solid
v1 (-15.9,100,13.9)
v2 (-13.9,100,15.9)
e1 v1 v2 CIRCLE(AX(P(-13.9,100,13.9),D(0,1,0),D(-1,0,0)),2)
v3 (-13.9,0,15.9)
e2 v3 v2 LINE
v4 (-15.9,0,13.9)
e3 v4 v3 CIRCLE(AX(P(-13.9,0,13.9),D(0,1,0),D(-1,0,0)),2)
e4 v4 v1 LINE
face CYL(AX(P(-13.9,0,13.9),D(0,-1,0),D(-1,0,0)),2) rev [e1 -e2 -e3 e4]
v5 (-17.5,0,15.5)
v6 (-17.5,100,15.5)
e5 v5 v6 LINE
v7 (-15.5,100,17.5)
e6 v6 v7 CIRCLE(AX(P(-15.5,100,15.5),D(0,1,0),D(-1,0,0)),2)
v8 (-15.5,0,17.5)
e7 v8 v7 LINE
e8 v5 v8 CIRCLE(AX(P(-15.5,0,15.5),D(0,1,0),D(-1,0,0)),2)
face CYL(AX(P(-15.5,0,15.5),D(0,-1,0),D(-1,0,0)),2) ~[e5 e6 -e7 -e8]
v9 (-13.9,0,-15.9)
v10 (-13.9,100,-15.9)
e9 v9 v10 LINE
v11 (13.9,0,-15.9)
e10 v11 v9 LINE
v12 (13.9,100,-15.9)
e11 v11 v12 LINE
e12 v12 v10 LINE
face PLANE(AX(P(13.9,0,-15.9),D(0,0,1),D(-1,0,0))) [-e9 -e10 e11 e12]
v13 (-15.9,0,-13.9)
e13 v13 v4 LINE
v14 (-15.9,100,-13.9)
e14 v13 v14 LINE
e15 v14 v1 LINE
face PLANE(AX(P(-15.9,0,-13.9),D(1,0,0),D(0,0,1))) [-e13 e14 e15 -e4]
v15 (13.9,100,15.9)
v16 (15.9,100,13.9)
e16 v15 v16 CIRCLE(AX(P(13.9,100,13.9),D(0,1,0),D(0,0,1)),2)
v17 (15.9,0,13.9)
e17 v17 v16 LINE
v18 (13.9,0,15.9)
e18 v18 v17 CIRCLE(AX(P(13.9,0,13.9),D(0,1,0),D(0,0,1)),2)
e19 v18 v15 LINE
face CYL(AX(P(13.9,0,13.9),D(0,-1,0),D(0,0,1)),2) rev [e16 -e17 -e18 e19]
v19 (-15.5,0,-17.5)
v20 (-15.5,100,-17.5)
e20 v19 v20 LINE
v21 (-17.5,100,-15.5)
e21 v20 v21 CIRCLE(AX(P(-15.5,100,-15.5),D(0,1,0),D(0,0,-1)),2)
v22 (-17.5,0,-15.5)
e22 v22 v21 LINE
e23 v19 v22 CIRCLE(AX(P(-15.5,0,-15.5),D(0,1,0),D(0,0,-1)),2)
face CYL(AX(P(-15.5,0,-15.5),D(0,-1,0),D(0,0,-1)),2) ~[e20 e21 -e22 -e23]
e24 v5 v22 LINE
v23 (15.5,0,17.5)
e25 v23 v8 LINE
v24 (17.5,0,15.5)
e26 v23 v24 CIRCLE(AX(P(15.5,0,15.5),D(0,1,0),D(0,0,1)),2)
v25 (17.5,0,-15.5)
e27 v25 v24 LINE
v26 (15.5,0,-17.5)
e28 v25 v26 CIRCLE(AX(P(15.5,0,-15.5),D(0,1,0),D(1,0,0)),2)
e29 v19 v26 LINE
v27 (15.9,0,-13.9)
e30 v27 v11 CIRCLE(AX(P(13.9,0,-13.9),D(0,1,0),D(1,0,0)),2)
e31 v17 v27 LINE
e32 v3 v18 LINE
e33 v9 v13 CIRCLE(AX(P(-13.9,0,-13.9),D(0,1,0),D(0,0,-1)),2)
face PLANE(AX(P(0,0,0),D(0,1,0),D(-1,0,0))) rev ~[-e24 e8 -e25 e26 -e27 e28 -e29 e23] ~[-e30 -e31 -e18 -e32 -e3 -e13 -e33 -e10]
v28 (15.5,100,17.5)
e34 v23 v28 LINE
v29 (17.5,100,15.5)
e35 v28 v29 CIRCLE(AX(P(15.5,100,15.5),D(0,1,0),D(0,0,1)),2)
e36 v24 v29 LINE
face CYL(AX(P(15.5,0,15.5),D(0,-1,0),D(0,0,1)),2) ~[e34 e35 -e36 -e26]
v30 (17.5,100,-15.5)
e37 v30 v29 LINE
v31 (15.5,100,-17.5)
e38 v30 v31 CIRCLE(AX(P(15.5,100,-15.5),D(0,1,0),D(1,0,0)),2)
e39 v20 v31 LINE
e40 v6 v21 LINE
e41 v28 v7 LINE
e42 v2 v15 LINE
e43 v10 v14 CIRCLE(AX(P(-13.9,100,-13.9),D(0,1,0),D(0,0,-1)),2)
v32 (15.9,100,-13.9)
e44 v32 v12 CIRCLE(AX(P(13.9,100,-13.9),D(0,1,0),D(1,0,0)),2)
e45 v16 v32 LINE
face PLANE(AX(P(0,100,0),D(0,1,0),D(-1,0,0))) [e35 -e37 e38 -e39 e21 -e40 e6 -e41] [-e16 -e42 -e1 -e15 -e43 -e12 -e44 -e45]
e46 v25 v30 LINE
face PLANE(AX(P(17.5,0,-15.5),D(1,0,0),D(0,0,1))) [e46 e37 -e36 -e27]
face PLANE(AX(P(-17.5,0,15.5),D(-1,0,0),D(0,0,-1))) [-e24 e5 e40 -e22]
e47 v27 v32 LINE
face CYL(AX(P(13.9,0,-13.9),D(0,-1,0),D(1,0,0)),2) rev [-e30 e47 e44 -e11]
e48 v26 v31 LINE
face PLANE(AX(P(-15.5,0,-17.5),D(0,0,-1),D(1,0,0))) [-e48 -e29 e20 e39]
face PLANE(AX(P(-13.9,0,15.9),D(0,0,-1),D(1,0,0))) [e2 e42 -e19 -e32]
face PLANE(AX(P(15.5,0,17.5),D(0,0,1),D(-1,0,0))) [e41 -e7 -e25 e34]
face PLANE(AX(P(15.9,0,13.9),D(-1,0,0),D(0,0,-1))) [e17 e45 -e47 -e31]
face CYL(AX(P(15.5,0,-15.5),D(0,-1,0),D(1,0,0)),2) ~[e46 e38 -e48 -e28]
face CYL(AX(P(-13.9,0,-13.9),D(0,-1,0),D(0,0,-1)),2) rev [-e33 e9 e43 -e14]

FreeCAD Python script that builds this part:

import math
import FreeCAD as App
import Part
import Sketcher

doc = App.newDocument("Part")
body = doc.addObject("PartDesign::Body", "Body")

# Sketch on XZ plane
sketch1 = body.newObject("Sketcher::SketchObject", "Sketch")
sketch1.AttachmentSupport = (doc.getObject("XZ_Plane"), [""])
sketch1.MapMode = "FlatFace"
sketch1.addGeometry([
    Part.LineSegment(App.Vector(-15.5, 17.5, 0), App.Vector(15.5, 17.5, 0)),  # 0
    Part.ArcOfCircle(Part.Circle(App.Vector(15.5, 15.5, 0), App.Vector(0, 0, 1), 2), math.radians(0), math.radians(90)),  # 1
    Part.LineSegment(App.Vector(17.5, 15.5, 0), App.Vector(17.5, -15.5, 0)),  # 2
    Part.ArcOfCircle(Part.Circle(App.Vector(15.5, -15.5, 0), App.Vector(0, 0, 1), 2), math.radians(-90), math.radians(0)),  # 3
    Part.LineSegment(App.Vector(15.5, -17.5, 0), App.Vector(-15.5, -17.5, 0)),  # 4
    Part.ArcOfCircle(Part.Circle(App.Vector(-15.5, -15.5, 0), App.Vector(0, 0, 1), 2), math.radians(180), math.radians(270)),  # 5
    Part.LineSegment(App.Vector(-17.5, -15.5, 0), App.Vector(-17.5, 15.5, 0)),  # 6
    Part.ArcOfCircle(Part.Circle(App.Vector(-15.5, 15.5, 0), App.Vector(0, 0, 1), 2), math.radians(90), math.radians(180)),  # 7
    Part.LineSegment(App.Vector(-13.9, -15.9, 0), App.Vector(13.9, -15.9, 0)),  # 8
    Part.ArcOfCircle(Part.Circle(App.Vector(13.9, -13.9, 0), App.Vector(0, 0, 1), 2), math.radians(-90), math.radians(0)),  # 9
    Part.LineSegment(App.Vector(15.9, -13.9, 0), App.Vector(15.9, 13.9, 0)),  # 10
    Part.ArcOfCircle(Part.Circle(App.Vector(13.9, 13.9, 0), App.Vector(0, 0, 1), 2), math.radians(0), math.radians(90)),  # 11
    Part.LineSegment(App.Vector(13.9, 15.9, 0), App.Vector(-13.9, 15.9, 0)),  # 12
    Part.ArcOfCircle(Part.Circle(App.Vector(-13.9, 13.9, 0), App.Vector(0, 0, 1), 2), math.radians(90), math.radians(180)),  # 13
    Part.LineSegment(App.Vector(-15.9, 13.9, 0), App.Vector(-15.9, -13.9, 0)),  # 14
    Part.ArcOfCircle(Part.Circle(App.Vector(-13.9, -13.9, 0), App.Vector(0, 0, 1), 2), math.radians(180), math.radians(270)),  # 15
], False)
sketch1.addConstraint([
    Sketcher.Constraint("Tangent", 0, 2, 1, 2),
    Sketcher.Constraint("Tangent", 1, 1, 2, 1),
    Sketcher.Constraint("Tangent", 2, 2, 3, 2),
    Sketcher.Constraint("Tangent", 3, 1, 4, 1),
    Sketcher.Constraint("Tangent", 4, 2, 5, 2),
    Sketcher.Constraint("Tangent", 5, 1, 6, 1),
    Sketcher.Constraint("Tangent", 6, 2, 7, 2),
    Sketcher.Constraint("Tangent", 7, 1, 0, 1),
    Sketcher.Constraint("Tangent", 8, 2, 9, 1),
    Sketcher.Constraint("Tangent", 9, 2, 10, 1),
    Sketcher.Constraint("Tangent", 10, 2, 11, 1),
    Sketcher.Constraint("Tangent", 11, 2, 12, 1),
    Sketcher.Constraint("Tangent", 12, 2, 13, 1),
    Sketcher.Constraint("Tangent", 13, 2, 14, 1),
    Sketcher.Constraint("Tangent", 14, 2, 15, 1),
    Sketcher.Constraint("Tangent", 15, 2, 8, 1),
    Sketcher.Constraint("Horizontal", 0),
    Sketcher.Constraint("Vertical", 2),
    Sketcher.Constraint("Horizontal", 4),
    Sketcher.Constraint("Vertical", 6),
    Sketcher.Constraint("Horizontal", 8),
    Sketcher.Constraint("Vertical", 10),
    Sketcher.Constraint("Horizontal", 12),
    Sketcher.Constraint("Vertical", 14),
    Sketcher.Constraint("Equal", 1, 3),
    Sketcher.Constraint("Equal", 3, 5),
    Sketcher.Constraint("Equal", 5, 7),
    Sketcher.Constraint("Equal", 7, 9),
    Sketcher.Constraint("Equal", 9, 11),
    Sketcher.Constraint("Equal", 11, 13),
    Sketcher.Constraint("Equal", 13, 15),
    Sketcher.Constraint("Symmetric", 1, 3, 5, 3, -1, 1),
    Sketcher.Constraint("Symmetric", 9, 3, 13, 3, -1, 1),
    Sketcher.Constraint("Equal", 4, 2),
    Sketcher.Constraint("Equal", 12, 10),
    Sketcher.Constraint("Radius", 1, 2.0),
    Sketcher.Constraint("DistanceX", 9, 3, 3, 3, 1.6),
    Sketcher.Constraint("DistanceX", 0, 1, 0, 2, 31.0),
])
pad1 = body.newObject("PartDesign::Pad", "Pad")
pad1.Profile = sketch1
pad1.Length = 100
pad1.Reversed = True

doc.recompute()
